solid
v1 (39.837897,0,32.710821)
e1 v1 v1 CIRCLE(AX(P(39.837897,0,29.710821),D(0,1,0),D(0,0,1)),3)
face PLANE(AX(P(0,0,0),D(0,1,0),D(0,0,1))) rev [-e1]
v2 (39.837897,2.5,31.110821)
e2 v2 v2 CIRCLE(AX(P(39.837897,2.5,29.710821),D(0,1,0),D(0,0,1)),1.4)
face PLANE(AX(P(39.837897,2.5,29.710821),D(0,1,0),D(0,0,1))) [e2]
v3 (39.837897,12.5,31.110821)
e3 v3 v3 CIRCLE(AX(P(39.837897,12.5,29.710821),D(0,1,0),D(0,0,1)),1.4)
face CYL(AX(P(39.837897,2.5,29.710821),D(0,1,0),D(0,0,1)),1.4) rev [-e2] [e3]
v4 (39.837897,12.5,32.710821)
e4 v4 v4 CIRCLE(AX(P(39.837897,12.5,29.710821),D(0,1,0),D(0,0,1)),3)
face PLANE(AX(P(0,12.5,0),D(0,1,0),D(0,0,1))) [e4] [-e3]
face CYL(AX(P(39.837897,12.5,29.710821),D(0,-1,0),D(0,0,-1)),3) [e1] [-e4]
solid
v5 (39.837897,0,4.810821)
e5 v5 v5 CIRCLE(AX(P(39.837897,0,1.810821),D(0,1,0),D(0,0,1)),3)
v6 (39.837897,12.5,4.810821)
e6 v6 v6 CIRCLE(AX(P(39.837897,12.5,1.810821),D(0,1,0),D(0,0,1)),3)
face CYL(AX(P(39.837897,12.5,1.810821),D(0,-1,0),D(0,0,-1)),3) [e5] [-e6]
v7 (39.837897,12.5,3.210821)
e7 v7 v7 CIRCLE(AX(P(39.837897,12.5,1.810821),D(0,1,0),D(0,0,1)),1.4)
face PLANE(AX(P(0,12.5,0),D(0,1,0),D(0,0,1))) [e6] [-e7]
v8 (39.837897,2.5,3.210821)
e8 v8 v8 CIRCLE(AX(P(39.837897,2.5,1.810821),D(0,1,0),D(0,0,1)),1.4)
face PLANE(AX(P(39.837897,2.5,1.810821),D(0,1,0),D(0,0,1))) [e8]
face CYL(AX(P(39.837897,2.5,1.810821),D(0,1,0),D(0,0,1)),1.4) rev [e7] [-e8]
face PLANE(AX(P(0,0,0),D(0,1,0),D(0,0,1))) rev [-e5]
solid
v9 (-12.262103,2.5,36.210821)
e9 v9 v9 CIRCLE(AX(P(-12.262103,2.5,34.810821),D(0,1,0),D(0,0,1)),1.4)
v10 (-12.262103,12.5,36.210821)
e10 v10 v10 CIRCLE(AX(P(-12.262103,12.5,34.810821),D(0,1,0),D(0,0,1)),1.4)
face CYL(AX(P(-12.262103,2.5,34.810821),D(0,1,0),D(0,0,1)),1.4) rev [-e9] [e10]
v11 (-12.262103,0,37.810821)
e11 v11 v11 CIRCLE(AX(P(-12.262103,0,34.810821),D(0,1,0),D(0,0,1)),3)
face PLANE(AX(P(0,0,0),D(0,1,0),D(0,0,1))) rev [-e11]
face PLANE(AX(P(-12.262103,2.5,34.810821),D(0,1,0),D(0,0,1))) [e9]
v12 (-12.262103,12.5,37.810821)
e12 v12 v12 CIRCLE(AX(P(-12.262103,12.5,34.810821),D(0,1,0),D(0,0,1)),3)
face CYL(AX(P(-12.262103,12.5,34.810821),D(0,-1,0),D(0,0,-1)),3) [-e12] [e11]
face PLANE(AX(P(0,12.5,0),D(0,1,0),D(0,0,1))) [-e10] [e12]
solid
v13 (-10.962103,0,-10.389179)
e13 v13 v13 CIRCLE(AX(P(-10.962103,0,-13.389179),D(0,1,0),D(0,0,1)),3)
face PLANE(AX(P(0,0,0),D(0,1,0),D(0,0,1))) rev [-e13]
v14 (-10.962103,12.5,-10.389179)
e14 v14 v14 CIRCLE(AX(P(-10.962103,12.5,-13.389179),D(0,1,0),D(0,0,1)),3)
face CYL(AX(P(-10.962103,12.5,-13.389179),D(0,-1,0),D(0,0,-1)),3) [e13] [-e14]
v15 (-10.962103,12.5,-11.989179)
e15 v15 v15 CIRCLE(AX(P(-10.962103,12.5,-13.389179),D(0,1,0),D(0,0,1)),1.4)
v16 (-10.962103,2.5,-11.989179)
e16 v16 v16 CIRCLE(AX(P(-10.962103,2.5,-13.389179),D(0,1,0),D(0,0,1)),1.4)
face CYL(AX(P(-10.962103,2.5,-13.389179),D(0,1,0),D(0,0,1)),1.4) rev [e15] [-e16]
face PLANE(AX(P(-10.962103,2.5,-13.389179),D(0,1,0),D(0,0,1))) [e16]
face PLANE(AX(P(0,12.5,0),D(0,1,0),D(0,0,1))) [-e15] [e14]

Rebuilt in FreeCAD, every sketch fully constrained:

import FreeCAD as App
import Part
import Sketcher
from FreeCAD import Vector

doc = App.newDocument("Part")
params = doc.addObject("Spreadsheet::Sheet", "Params")
for row, (alias, value) in enumerate([
    ("sketch1_diameter", "6 mm"),
    ("pad1_length", "12.5 mm"),
    ("sketch2_diameter", "6 mm"),
    ("pad2_length", "12.5 mm"),
    ("sketch3_diameter", "6 mm"),
    ("pad3_length", "12.5 mm"),
    ("sketch4_diameter", "6 mm"),
    ("pad4_length", "12.5 mm"),
    ("sketch5_diameter", "2.8 mm"),
    ("pad5_length", "10 mm"),
], start=1):
    params.set(f"A{row}", alias)
    params.set(f"B{row}", "=" + value)
    params.setAlias(f"B{row}", alias)

body = doc.addObject("PartDesign::Body", "Body")

# Sketch on XZ plane
sketch1 = doc.addObject("Sketcher::SketchObject", "Sketch")
body.addObject(sketch1)
sketch1.AttachmentSupport = (doc.XZ_Plane, [""])
sketch1.MapMode = "FlatFace"
sketch1.addGeometry(Part.Circle(Vector(-11, -13.4, 0), Vector(0, 0, 1), 3), False)
sketch1.addConstraint([
    Sketcher.Constraint("Diameter", 0, 6.0),
    Sketcher.Constraint("DistanceY", 0, 3, -1, 1, 13.389179),
    Sketcher.Constraint("DistanceX", 0, 3, -1, 1, 10.962103),
])
sketch1.setExpression("Constraints[0]", "Params.sketch1_diameter")
pad1 = doc.addObject("PartDesign::Pad", "Pad")
body.addObject(pad1)
pad1.Profile = sketch1
pad1.setExpression("Length", "Params.pad1_length")
pad1.Reversed = True
body2 = doc.addObject("PartDesign::Body", "Body001")

# Sketch on XZ plane
sketch2 = doc.addObject("Sketcher::SketchObject", "Sketch001")
body2.addObject(sketch2)
sketch2.AttachmentSupport = (doc.getObject("XZ_Plane001"), [""])
sketch2.MapMode = "FlatFace"
sketch2.addGeometry(Part.Circle(Vector(-12.3, 34.8, 0), Vector(0, 0, 1), 3), False)
sketch2.addConstraint([
    Sketcher.Constraint("Diameter", 0, 6.0),
    Sketcher.Constraint("DistanceY", -1, 1, 0, 3, 34.810821),
    Sketcher.Constraint("DistanceX", 0, 3, -1, 1, 12.262103),
])
sketch2.setExpression("Constraints[0]", "Params.sketch2_diameter")
pad2 = doc.addObject("PartDesign::Pad", "Pad001")
body2.addObject(pad2)
pad2.Profile = sketch2
pad2.setExpression("Length", "Params.pad2_length")
pad2.Reversed = True
body3 = doc.addObject("PartDesign::Body", "Body002")

# Sketch on XZ plane
sketch3 = doc.addObject("Sketcher::SketchObject", "Sketch002")
body3.addObject(sketch3)
sketch3.AttachmentSupport = (doc.getObject("XZ_Plane002"), [""])
sketch3.MapMode = "FlatFace"
sketch3.addGeometry(Part.Circle(Vector(39.8, 29.7, 0), Vector(0, 0, 1), 3), False)
sketch3.addConstraint([
    Sketcher.Constraint("Diameter", 0, 6.0),
    Sketcher.Constraint("DistanceY", -1, 1, 0, 3, 29.710821),
    Sketcher.Constraint("DistanceX", -1, 1, 0, 3, 39.837897),
])
sketch3.setExpression("Constraints[0]", "Params.sketch3_diameter")
pad3 = doc.addObject("PartDesign::Pad", "Pad002")
body3.addObject(pad3)
pad3.Profile = sketch3
pad3.setExpression("Length", "Params.pad3_length")
pad3.Reversed = True
body4 = doc.addObject("PartDesign::Body", "Body003")

# Sketch on XZ plane
sketch4 = doc.addObject("Sketcher::SketchObject", "Sketch003")
body4.addObject(sketch4)
sketch4.AttachmentSupport = (doc.getObject("XZ_Plane003"), [""])
sketch4.MapMode = "FlatFace"
sketch4.addGeometry(Part.Circle(Vector(39.8, 1.8, 0), Vector(0, 0, 1), 3), False)
sketch4.addConstraint([
    Sketcher.Constraint("Diameter", 0, 6.0),
    Sketcher.Constraint("DistanceY", -1, 1, 0, 3, 1.810821),
    Sketcher.Constraint("DistanceX", -1, 1, 0, 3, 39.837897),
])
sketch4.setExpression("Constraints[0]", "Params.sketch4_diameter")
pad4 = doc.addObject("PartDesign::Pad", "Pad003")
body4.addObject(pad4)
pad4.Profile = sketch4
pad4.setExpression("Length", "Params.pad4_length")
pad4.Reversed = True
body5 = doc.addObject("PartDesign::Body", "Body004")
body5.AllowCompound = True

# Sketch on XZ plane
sketch5 = doc.addObject("Sketcher::SketchObject", "Sketch004")
body5.addObject(sketch5)
sketch5.AttachmentSupport = (doc.getObject("XZ_Plane004"), [""])
sketch5.MapMode = "FlatFace"
sketch5.AttachmentOffset = App.Placement(Vector(0, 0, -12.5), App.Rotation())
sketch5.addGeometry([
    Part.Circle(Vector(-11, -13.4, 0), Vector(0, 0, 1), 1.4),
    Part.Circle(Vector(39.8, 1.8, 0), Vector(0, 0, 1), 1.4),
    Part.Circle(Vector(39.8, 29.7, 0), Vector(0, 0, 1), 1.4),
    Part.Circle(Vector(-12.3, 34.8, 0), Vector(0, 0, 1), 1.4),
], False)
sketch5.addConstraint([
    Sketcher.Constraint("Equal", 0, 1),
    Sketcher.Constraint("Equal", 1, 2),
    Sketcher.Constraint("Equal", 2, 3),
    Sketcher.Constraint("Vertical", 1, 3, 2, 3),
    Sketcher.Constraint("Diameter", 0, 2.8),
    Sketcher.Constraint("DistanceY", 1, 3, 3, 3, 33.0),
    Sketcher.Constraint("DistanceX", 0, 3, 1, 3, 50.8),
    Sketcher.Constraint("DistanceY", 0, 3, 1, 3, 15.2),
    Sketcher.Constraint("DistanceY", 1, 3, 2, 3, 27.9),
    Sketcher.Constraint("DistanceX", 3, 3, 0, 3, 1.3),
    Sketcher.Constraint("DistanceY", 0, 3, -1, 1, 13.389179),
    Sketcher.Constraint("DistanceX", 0, 3, -1, 1, 10.962103),
])
sketch5.setExpression("Constraints[4]", "Params.sketch5_diameter")
pad5 = doc.addObject("PartDesign::Pad", "Pad004")
body5.addObject(pad5)
pad5.Profile = sketch5
pad5.setExpression("Length", "Params.pad5_length")
doc.recompute()

body6 = doc.addObject("PartDesign::Body", "Body005")
body6.BaseFeature = body5
boolean = doc.addObject("PartDesign::Boolean", "Boolean")
body.addObject(boolean)
boolean.Type = "Cut"
boolean.addObjects([body6])
doc.recompute()

body7 = doc.addObject("PartDesign::Body", "Body006")
body7.BaseFeature = body5
boolean2 = doc.addObject("PartDesign::Boolean", "Boolean001")
body2.addObject(boolean2)
boolean2.Type = "Cut"
boolean2.addObjects([body7])
doc.recompute()

body8 = doc.addObject("PartDesign::Body", "Body007")
body8.BaseFeature = body5
boolean3 = doc.addObject("PartDesign::Boolean", "Boolean002")
body3.addObject(boolean3)
boolean3.Type = "Cut"
boolean3.addObjects([body8])
doc.recompute()

boolean4 = doc.addObject("PartDesign::Boolean", "Boolean003")
body4.addObject(boolean4)
boolean4.Type = "Cut"
boolean4.addObjects([body5])

doc.recompute()
